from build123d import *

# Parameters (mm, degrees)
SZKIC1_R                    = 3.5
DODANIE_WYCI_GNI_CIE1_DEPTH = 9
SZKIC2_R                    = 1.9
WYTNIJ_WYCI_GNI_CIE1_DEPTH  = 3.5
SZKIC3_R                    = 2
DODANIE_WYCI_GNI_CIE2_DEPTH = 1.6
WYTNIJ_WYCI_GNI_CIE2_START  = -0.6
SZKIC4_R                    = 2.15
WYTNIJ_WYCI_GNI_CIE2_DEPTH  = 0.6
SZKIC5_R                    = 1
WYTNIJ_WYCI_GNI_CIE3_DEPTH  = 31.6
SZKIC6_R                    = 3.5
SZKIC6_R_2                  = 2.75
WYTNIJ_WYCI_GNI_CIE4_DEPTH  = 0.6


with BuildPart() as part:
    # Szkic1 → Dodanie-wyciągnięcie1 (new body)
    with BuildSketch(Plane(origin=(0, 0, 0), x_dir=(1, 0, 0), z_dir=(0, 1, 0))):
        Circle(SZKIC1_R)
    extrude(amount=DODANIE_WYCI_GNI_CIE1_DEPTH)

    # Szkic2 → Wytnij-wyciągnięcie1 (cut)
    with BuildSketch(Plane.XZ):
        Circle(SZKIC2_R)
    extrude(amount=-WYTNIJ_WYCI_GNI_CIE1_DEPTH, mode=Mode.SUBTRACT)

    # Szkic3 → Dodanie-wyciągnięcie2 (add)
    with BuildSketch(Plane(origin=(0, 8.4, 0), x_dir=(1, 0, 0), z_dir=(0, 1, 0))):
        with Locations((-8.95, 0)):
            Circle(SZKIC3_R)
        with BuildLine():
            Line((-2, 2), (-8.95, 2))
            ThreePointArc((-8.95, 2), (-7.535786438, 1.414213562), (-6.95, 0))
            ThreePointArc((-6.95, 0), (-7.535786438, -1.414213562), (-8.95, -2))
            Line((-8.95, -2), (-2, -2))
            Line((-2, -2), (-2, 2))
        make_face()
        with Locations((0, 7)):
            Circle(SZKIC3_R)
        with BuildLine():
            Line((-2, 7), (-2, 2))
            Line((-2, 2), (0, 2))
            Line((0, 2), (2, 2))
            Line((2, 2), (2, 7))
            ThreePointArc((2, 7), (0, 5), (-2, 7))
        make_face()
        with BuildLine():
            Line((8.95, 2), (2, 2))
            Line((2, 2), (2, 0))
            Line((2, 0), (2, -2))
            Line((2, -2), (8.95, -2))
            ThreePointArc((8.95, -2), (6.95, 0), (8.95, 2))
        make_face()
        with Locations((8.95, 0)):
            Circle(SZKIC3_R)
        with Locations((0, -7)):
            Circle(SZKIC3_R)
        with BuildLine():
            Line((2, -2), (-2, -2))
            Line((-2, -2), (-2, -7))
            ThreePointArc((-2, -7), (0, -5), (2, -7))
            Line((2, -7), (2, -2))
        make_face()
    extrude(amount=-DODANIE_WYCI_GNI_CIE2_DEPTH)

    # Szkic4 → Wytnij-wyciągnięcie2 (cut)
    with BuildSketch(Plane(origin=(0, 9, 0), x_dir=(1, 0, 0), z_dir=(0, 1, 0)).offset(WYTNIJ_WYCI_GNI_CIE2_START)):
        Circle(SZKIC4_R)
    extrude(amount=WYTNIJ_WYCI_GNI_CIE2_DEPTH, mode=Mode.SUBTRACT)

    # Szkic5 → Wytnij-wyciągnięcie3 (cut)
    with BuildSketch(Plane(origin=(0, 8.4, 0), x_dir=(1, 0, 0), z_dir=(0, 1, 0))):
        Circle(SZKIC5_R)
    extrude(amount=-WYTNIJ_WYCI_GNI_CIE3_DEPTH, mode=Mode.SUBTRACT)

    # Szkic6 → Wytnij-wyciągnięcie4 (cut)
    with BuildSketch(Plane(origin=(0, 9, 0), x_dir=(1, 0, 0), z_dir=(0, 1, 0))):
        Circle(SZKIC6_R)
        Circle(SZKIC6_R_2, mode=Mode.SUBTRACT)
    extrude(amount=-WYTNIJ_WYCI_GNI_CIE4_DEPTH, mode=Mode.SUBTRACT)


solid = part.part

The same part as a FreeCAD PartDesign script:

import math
import FreeCAD as App
import Part
import Sketcher
Q = App.Units.Quantity

doc = App.newDocument("Part")
body = doc.addObject("PartDesign::Body", "Body")

# Sketch on XZ plane
sketch1 = body.newObject("Sketcher::SketchObject", "Sketch")
sketch1.AttachmentSupport = (doc.getObject("XZ_Plane"), [""])
sketch1.MapMode = "FlatFace"
sketch1.addGeometry(Part.Circle(App.Vector(0, 0, 0), App.Vector(0, 0, 1), 3.5), False)
sketch1.addConstraint(Sketcher.Constraint("Coincident", 0, 3, -1, 1))
sketch1.addConstraint(Sketcher.Constraint("Diameter", 0, Q("7 mm")))
pad1 = body.newObject("PartDesign::Pad", "Pad")
pad1.Profile = sketch1
pad1.Length = 9
pad1.Reversed = True

# Sketch on XZ plane
sketch2 = body.newObject("Sketcher::SketchObject", "Sketch001")
sketch2.AttachmentSupport = (doc.getObject("XZ_Plane"), [""])
sketch2.MapMode = "FlatFace"
sketch2.addGeometry(Part.Circle(App.Vector(0, 0, 0), App.Vector(0, 0, 1), 1.9), False)
sketch2.addConstraint(Sketcher.Constraint("Coincident", 0, 3, -1, 1))
sketch2.addConstraint(Sketcher.Constraint("Diameter", 0, Q("3.8 mm")))
pocket1 = body.newObject("PartDesign::Pocket", "Pocket")
pocket1.Profile = sketch2
pocket1.Length = 3.5

# Sketch on XZ plane
sketch3 = body.newObject("Sketcher::SketchObject", "Sketch002")
sketch3.AttachmentSupport = (doc.getObject("XZ_Plane"), [""])
sketch3.MapMode = "FlatFace"
sketch3.AttachmentOffset = App.Placement(App.Vector(0, 0, -8.4), App.Rotation())
sketch3.addGeometry(Part.ArcOfCircle(Part.Circle(App.Vector(-8.9, 0, 0), App.Vector(0, 0, 1), 2), math.radians(90), math.radians(270)), False)
sketch3.addGeometry(Part.LineSegment(App.Vector(-8.9, 2, 0), App.Vector(-2, 2, 0)), False)
sketch3.addGeometry(Part.LineSegment(App.Vector(-2, 2, 0), App.Vector(-2, -2, 0)), False)
sketch3.addGeometry(Part.LineSegment(App.Vector(-2, -2, 0), App.Vector(-8.9, -2, 0)), False)
sketch3.addGeometry(Part.ArcOfCircle(Part.Circle(App.Vector(0, -7, 0), App.Vector(0, 0, 1), 2), math.radians(180), math.radians(360)), False)
sketch3.addGeometry(Part.LineSegment(App.Vector(-2, -7, 0), App.Vector(-2, -2, 0)), False)
sketch3.addGeometry(Part.LineSegment(App.Vector(-2, -2, 0), App.Vector(2, -2, 0)), False)
sketch3.addGeometry(Part.LineSegment(App.Vector(2, -2, 0), App.Vector(2, -7, 0)), False)
sketch3.addGeometry(Part.LineSegment(App.Vector(8.9, -2, 0), App.Vector(2, -2, 0)), False)
sketch3.addGeometry(Part.LineSegment(App.Vector(2, -2, 0), App.Vector(2, 2, 0)), False)
sketch3.addGeometry(Part.LineSegment(App.Vector(2, 2, 0), App.Vector(8.9, 2, 0)), False)
sketch3.addGeometry(Part.ArcOfCircle(Part.Circle(App.Vector(8.9, 0, 0), App.Vector(0, 0, 1), 2), math.radians(-90), math.radians(90)), False)
sketch3.addGeometry(Part.ArcOfCircle(Part.Circle(App.Vector(0, 7, 0), App.Vector(0, 0, 1), 2), math.radians(0), math.radians(180)), False)
sketch3.addGeometry(Part.LineSegment(App.Vector(2, 7, 0), App.Vector(2, 2, 0)), False)
sketch3.addGeometry(Part.LineSegment(App.Vector(2, 2, 0), App.Vector(-2, 2, 0)), False)
sketch3.addGeometry(Part.LineSegment(App.Vector(-2, 2, 0), App.Vector(-2, 7, 0)), False)
sketch3.addConstraint(Sketcher.Constraint("Tangent", 0, 1, 1, 1))
sketch3.addConstraint(Sketcher.Constraint("Coincident", 1, 2, 2, 1))
sketch3.addConstraint(Sketcher.Constraint("Coincident", 2, 2, 3, 1))
sketch3.addConstraint(Sketcher.Constraint("Tangent", 3, 2, 0, 2))
sketch3.addConstraint(Sketcher.Constraint("Tangent", 4, 1, 5, 1))
sketch3.addConstraint(Sketcher.Constraint("Coincident", 5, 2, 6, 1))
sketch3.addConstraint(Sketcher.Constraint("Coincident", 6, 2, 7, 1))
sketch3.addConstraint(Sketcher.Constraint("Tangent", 7, 2, 4, 2))
sketch3.addConstraint(Sketcher.Constraint("Coincident", 8, 2, 9, 1))
sketch3.addConstraint(Sketcher.Constraint("Coincident", 9, 2, 10, 1))
sketch3.addConstraint(Sketcher.Constraint("Tangent", 10, 2, 11, 2))
sketch3.addConstraint(Sketcher.Constraint("Tangent", 11, 1, 8, 1))
sketch3.addConstraint(Sketcher.Constraint("Tangent", 12, 1, 13, 1))
sketch3.addConstraint(Sketcher.Constraint("Coincident", 13, 2, 14, 1))
sketch3.addConstraint(Sketcher.Constraint("Coincident", 14, 2, 15, 1))
sketch3.addConstraint(Sketcher.Constraint("Tangent", 15, 2, 12, 2))
sketch3.addConstraint(Sketcher.Constraint("Horizontal", 1))
sketch3.addConstraint(Sketcher.Constraint("Vertical", 2))
sketch3.addConstraint(Sketcher.Constraint("Horizontal", 3))
sketch3.addConstraint(Sketcher.Constraint("Vertical", 5))
sketch3.addConstraint(Sketcher.Constraint("Horizontal", 6))
sketch3.addConstraint(Sketcher.Constraint("Vertical", 7))
sketch3.addConstraint(Sketcher.Constraint("Horizontal", 8))
sketch3.addConstraint(Sketcher.Constraint("Vertical", 9))
sketch3.addConstraint(Sketcher.Constraint("Horizontal", 10))
sketch3.addConstraint(Sketcher.Constraint("Vertical", 13))
sketch3.addConstraint(Sketcher.Constraint("Horizontal", 14))
sketch3.addConstraint(Sketcher.Constraint("Vertical", 15))
sketch3.addConstraint(Sketcher.Constraint("Coincident", 5, 2, 2, 2))
sketch3.addConstraint(Sketcher.Constraint("Coincident", 8, 2, 6, 2))
sketch3.addConstraint(Sketcher.Constraint("Coincident", 13, 2, 9, 2))
sketch3.addConstraint(Sketcher.Constraint("Coincident", 14, 2, 1, 2))
sketch3.addConstraint(Sketcher.Constraint("Equal", 0, 4))
sketch3.addConstraint(Sketcher.Constraint("Symmetric", 0, 3, 11, 3, -1, 1))
sketch3.addConstraint(Sketcher.Constraint("Symmetric", 4, 3, 12, 3, -1, 1))
sketch3.addConstraint(Sketcher.Constraint("Radius", 0, Q("2 mm")))
sketch3.addConstraint(Sketcher.Constraint("DistanceY", 5, 1, 5, 2, Q("5 mm")))
sketch3.addConstraint(Sketcher.Constraint("DistanceX", 1, 1, 1, 2, Q("6.95 mm")))
pad2 = body.newObject("PartDesign::Pad", "Pad001")
pad2.Profile = sketch3
pad2.Length = 1.6

# Sketch on XZ plane
sketch4 = body.newObject("Sketcher::SketchObject", "Sketch003")
sketch4.AttachmentSupport = (doc.getObject("XZ_Plane"), [""])
sketch4.MapMode = "FlatFace"
sketch4.AttachmentOffset = App.Placement(App.Vector(0, 0, -8.4), App.Rotation())
sketch4.addGeometry(Part.Circle(App.Vector(0, 0, 0), App.Vector(0, 0, 1), 2.1), False)
sketch4.addConstraint(Sketcher.Constraint("Coincident", 0, 3, -1, 1))
sketch4.addConstraint(Sketcher.Constraint("Diameter", 0, Q("4.3 mm")))
pocket2 = body.newObject("PartDesign::Pocket", "Pocket001")
pocket2.Profile = sketch4
pocket2.Length = 0.6

# Sketch on XZ plane
sketch5 = body.newObject("Sketcher::SketchObject", "Sketch004")
sketch5.AttachmentSupport = (doc.getObject("XZ_Plane"), [""])
sketch5.MapMode = "FlatFace"
sketch5.AttachmentOffset = App.Placement(App.Vector(0, 0, -8.4), App.Rotation())
sketch5.addGeometry(Part.Circle(App.Vector(0, 0, 0), App.Vector(0, 0, 1), 1), False)
sketch5.addConstraint(Sketcher.Constraint("Coincident", 0, 3, -1, 1))
sketch5.addConstraint(Sketcher.Constraint("Diameter", 0, Q("2 mm")))
pocket3 = body.newObject("PartDesign::Pocket", "Pocket002")
pocket3.Profile = sketch5
pocket3.Length = 31.6
pocket3.Reversed = True

# Sketch on XZ plane
sketch6 = body.newObject("Sketcher::SketchObject", "Sketch005")
sketch6.AttachmentSupport = (doc.getObject("XZ_Plane"), [""])
sketch6.MapMode = "FlatFace"
sketch6.AttachmentOffset = App.Placement(App.Vector(0, 0, -9), App.Rotation())
sketch6.addGeometry(Part.Circle(App.Vector(0, 0, 0), App.Vector(0, 0, 1), 3.5), False)
sketch6.addGeometry(Part.Circle(App.Vector(0, 0, 0), App.Vector(0, 0, 1), 2.8), False)
sketch6.addConstraint(Sketcher.Constraint("Coincident", 0, 3, -1, 1))
sketch6.addConstraint(Sketcher.Constraint("Coincident", 1, 3, -1, 1))
sketch6.addConstraint(Sketcher.Constraint("Diameter", 0, Q("7 mm")))
sketch6.addConstraint(Sketcher.Constraint("Diameter", 1, Q("5.5 mm")))
pocket4 = body.newObject("PartDesign::Pocket", "Pocket003")
pocket4.Profile = sketch6
pocket4.Length = 0.6
pocket4.Reversed = True

doc.recompute()
